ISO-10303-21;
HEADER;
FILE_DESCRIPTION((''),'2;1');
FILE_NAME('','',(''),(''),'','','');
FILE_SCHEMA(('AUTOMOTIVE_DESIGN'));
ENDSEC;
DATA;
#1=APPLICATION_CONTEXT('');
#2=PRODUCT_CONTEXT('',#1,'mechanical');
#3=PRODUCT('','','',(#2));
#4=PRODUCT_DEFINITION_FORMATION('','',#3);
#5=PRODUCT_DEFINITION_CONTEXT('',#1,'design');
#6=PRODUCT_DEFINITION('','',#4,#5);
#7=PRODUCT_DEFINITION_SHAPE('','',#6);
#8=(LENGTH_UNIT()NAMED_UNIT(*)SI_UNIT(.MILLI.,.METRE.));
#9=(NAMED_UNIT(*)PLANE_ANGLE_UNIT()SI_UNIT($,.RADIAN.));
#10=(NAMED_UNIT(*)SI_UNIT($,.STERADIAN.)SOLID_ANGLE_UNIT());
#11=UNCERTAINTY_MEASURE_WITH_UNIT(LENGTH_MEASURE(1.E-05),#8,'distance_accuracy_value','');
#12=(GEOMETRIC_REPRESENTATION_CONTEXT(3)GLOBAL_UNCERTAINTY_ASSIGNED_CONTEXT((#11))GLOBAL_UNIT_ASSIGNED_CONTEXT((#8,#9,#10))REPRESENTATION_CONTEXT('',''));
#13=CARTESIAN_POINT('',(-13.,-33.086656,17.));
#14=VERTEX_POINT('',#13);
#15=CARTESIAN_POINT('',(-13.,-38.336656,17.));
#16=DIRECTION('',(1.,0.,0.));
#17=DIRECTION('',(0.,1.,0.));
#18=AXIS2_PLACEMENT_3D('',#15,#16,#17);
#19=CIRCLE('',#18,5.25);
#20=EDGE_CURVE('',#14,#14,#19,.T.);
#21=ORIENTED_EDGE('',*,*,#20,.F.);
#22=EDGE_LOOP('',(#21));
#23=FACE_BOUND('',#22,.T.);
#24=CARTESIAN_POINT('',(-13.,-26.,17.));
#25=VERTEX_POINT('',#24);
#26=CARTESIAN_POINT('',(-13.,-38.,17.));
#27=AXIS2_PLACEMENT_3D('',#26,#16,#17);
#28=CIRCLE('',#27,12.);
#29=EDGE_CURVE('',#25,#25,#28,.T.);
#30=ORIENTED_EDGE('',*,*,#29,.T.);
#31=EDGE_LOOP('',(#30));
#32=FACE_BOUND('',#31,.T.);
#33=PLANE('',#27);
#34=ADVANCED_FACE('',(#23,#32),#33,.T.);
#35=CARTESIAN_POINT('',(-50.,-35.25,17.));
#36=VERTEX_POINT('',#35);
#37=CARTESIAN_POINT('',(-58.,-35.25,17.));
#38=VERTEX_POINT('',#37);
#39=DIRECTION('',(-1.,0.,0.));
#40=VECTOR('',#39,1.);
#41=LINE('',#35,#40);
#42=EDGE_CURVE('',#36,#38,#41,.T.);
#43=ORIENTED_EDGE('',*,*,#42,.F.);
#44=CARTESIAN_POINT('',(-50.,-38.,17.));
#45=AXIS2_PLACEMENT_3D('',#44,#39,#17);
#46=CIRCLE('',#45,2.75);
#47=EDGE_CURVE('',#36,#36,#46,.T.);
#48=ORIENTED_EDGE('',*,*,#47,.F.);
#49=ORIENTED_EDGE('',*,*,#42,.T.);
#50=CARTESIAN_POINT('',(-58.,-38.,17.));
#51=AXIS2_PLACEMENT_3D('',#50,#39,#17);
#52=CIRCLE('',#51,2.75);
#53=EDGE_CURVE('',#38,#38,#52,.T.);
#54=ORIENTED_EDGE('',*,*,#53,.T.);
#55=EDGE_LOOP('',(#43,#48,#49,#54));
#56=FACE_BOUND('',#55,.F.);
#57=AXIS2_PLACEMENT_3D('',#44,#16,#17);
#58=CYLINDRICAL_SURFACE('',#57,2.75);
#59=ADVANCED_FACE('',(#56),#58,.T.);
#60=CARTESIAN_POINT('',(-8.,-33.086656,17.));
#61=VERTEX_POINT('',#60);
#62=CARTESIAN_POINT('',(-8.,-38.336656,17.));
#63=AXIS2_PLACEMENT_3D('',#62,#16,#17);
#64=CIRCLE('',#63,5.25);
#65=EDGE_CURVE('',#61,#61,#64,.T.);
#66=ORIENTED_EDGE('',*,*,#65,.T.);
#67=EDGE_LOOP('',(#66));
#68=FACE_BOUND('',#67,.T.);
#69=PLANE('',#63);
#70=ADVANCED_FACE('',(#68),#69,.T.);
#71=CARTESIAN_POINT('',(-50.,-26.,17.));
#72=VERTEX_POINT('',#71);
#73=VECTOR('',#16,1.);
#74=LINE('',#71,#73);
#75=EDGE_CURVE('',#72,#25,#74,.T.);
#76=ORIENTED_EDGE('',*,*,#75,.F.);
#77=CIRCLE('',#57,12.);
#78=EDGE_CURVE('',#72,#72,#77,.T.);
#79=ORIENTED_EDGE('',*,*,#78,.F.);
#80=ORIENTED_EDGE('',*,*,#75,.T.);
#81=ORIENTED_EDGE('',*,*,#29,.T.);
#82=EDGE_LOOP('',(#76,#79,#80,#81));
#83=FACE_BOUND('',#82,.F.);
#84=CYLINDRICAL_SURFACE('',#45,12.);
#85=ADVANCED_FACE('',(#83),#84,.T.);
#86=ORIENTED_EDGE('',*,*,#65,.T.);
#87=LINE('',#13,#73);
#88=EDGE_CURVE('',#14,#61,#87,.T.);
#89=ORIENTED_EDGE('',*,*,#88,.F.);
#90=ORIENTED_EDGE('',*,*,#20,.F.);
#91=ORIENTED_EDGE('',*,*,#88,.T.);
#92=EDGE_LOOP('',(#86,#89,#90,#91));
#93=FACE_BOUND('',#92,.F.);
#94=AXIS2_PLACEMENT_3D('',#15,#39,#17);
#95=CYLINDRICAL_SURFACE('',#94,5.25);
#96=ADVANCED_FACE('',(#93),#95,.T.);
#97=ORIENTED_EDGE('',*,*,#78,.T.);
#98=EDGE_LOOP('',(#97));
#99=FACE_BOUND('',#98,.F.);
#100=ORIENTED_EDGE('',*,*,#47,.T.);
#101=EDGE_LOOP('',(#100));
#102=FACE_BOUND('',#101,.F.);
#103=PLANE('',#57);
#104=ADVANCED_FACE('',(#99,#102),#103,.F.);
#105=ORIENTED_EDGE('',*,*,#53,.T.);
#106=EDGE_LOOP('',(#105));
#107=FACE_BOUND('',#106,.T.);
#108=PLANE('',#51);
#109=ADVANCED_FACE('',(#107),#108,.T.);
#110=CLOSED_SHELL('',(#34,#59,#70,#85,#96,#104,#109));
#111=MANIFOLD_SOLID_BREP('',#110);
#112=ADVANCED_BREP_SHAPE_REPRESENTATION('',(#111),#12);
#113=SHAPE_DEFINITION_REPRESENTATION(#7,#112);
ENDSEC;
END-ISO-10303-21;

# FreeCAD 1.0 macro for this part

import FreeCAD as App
import Part
import Sketcher

V = App.Vector

doc = App.newDocument("Part")
body = doc.addObject("PartDesign::Body", "Body")

sketch1 = body.newObject("Sketcher::SketchObject", "Sketch")
sketch1.AttachmentSupport = (doc.getObject("YZ_Plane"), [""])
sketch1.MapMode = "FlatFace"
sketch1.addGeometry(Part.Circle(V(0, 0, 0), V(0, 0, 1), 12), False)
sketch1.addConstraint([
    Sketcher.Constraint("Coincident", 0, 3, -1, 1),
    Sketcher.Constraint("Diameter", 0, 24.0),
])
pad1 = body.newObject("PartDesign::Pad", "Pad")
pad1.Profile = sketch1
pad1.Length = 37

sketch2 = body.newObject("Sketcher::SketchObject", "Sketch001")
sketch2.AttachmentSupport = (doc.getObject("YZ_Plane"), [""])
sketch2.MapMode = "FlatFace"
sketch2.AttachmentOffset = App.Placement(V(0, 0, 37), App.Rotation())
sketch2.addGeometry(Part.Circle(V(0, 0, 0), V(0, 0, 1), 5), False)
sketch2.addConstraint([
    Sketcher.Constraint("PointOnObject", 0, 3, -1),
    Sketcher.Constraint("Diameter", 0, 10.5),
    Sketcher.Constraint("DistanceX", 0, 3, -1, 1, 0.336656),
])
pad2 = body.newObject("PartDesign::Pad", "Pad001")
pad2.Profile = sketch2
pad2.Length = 5

sketch3 = body.newObject("Sketcher::SketchObject", "Sketch002")
sketch3.AttachmentSupport = (doc.getObject("YZ_Plane"), [""])
sketch3.MapMode = "FlatFace"
sketch3.addGeometry(Part.Circle(V(0, 0, 0), V(0, 0, 1), 2.8), False)
sketch3.addConstraint([
    Sketcher.Constraint("Coincident", 0, 3, -1, 1),
    Sketcher.Constraint("Diameter", 0, 5.5),
])
pad3 = body.newObject("PartDesign::Pad", "Pad002")
pad3.Profile = sketch3
pad3.Length = 8
pad3.Reversed = True
body2 = doc.addObject("PartDesign::Body", "Body001")
doc.recompute()

body.Placement = App.Placement(V(-50, -38, 17), App.Rotation(V(0, 0, 1), 0))
boolean = body2.newObject("PartDesign::Boolean", "Boolean")
boolean.Type = "Fuse"
boolean.addObjects([body])

doc.recompute()
